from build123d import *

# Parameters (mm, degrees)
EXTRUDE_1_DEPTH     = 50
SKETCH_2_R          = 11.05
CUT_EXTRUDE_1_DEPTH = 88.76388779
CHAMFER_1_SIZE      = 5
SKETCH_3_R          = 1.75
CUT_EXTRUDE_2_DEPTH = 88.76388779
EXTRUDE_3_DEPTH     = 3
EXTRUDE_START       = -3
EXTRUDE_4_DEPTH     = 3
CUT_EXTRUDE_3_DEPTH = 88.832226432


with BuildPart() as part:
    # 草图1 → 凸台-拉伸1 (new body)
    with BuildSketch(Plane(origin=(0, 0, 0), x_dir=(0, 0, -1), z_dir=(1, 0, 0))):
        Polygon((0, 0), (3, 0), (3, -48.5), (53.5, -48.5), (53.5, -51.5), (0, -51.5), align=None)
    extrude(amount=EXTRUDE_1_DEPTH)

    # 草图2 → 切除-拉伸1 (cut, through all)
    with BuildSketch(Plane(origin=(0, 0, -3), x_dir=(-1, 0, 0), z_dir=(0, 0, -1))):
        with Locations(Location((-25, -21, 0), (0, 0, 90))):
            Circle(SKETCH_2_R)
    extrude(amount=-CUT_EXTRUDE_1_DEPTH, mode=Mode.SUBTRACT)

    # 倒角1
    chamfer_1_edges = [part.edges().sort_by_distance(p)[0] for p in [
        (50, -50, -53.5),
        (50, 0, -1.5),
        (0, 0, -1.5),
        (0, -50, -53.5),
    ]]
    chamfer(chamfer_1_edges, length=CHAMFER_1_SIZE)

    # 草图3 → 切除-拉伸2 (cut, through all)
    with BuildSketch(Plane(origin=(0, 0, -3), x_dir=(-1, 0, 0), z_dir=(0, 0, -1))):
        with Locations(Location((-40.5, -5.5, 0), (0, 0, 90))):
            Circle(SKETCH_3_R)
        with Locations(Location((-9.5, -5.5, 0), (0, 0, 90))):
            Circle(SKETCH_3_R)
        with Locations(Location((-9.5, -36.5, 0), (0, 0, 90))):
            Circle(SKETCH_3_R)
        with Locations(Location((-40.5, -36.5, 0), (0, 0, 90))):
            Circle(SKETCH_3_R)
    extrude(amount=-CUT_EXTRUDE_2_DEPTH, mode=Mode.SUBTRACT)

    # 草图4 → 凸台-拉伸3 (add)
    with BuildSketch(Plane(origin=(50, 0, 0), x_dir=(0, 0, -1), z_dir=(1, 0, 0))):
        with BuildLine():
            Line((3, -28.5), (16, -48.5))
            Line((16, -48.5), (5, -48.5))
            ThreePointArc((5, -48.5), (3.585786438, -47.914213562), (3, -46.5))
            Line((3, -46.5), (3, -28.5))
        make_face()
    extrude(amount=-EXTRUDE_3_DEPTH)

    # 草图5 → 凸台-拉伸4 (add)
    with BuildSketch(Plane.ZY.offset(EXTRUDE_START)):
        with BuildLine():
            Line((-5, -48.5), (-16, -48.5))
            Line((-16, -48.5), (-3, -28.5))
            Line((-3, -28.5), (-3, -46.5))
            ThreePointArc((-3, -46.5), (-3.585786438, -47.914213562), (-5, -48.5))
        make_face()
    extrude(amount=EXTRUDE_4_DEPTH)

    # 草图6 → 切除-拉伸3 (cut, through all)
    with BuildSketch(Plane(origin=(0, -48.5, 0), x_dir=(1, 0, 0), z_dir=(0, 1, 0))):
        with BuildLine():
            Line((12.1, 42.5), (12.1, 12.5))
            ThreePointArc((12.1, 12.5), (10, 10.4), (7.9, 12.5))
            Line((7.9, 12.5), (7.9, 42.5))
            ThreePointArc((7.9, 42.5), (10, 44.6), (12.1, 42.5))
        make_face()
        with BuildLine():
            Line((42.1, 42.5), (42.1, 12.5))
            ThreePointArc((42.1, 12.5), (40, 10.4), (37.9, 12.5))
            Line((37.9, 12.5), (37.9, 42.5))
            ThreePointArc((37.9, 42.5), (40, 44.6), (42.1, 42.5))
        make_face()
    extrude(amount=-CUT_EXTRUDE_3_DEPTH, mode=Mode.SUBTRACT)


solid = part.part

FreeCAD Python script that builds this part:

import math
import FreeCAD as App
import Part
import Sketcher
from FreeCAD import Vector
Q = App.Units.Quantity


def edges_at(feature, points):
    """Names of the edges that pass closest to the given points."""
    edges = feature.Shape.Edges
    near = lambda p: min(range(len(edges)), key=lambda i: edges[i].distToShape(Part.Vertex(*p))[0])
    return sorted({f"Edge{near(p) + 1}" for p in points})


def add_polygon(sketch, points):
    """Adds a closed chain of lines whose ends are joined by coincident constraints."""
    first, n = sketch.GeometryCount, len(points)
    for a, b in zip(points, points[1:] + points[:1]):
        sketch.addGeometry(Part.LineSegment(App.Vector(*a, 0), App.Vector(*b, 0)), False)
    for i in range(n):
        sketch.addConstraint(Sketcher.Constraint("Coincident", first + i, 2, first + (i + 1) % n, 1))

doc = App.newDocument("Part")
body = doc.addObject("PartDesign::Body", "Body")

sketch1 = body.newObject("Sketcher::SketchObject", "Sketch")
sketch1.AttachmentSupport = (doc.getObject("YZ_Plane"), [""])
sketch1.MapMode = "FlatFace"
add_polygon(sketch1, [(0, -3), (0, 0), (-51.5, 0), (-51.5, -53.5), (-48.5, -53.5), (-48.5, -3)])
sketch1.addConstraint([
    Sketcher.Constraint("Vertical", 0),
    Sketcher.Constraint("Horizontal", 1),
    Sketcher.Constraint("Vertical", 2),
    Sketcher.Constraint("Horizontal", 3),
    Sketcher.Constraint("Vertical", 4),
    Sketcher.Constraint("Horizontal", 5),
    Sketcher.Constraint("Coincident", 0, 2, -1, 1),
    Sketcher.Constraint("Equal", 3, 0),
    Sketcher.Constraint("DistanceX", 3, 1, 3, 2, Q("3 mm")),
    Sketcher.Constraint("DistanceX", 1, 2, 1, 1, Q("51.5 mm")),
    Sketcher.Constraint("DistanceY", 2, 2, 2, 1, Q("53.5 mm")),
])
pad1 = body.newObject("PartDesign::Pad", "Pad")
pad1.Profile = sketch1
pad1.Length = 50

sketch2 = body.newObject("Sketcher::SketchObject", "Sketch001")
sketch2.AttachmentSupport = (doc.getObject("XY_Plane"), [""])
sketch2.MapMode = "FlatFace"
sketch2.AttachmentOffset = App.Placement(Vector(0, 0, -3), App.Rotation())
sketch2.addGeometry(Part.Circle(Vector(25, -21, 0), Vector(0, 0, 1), 11), False)
sketch2.addConstraint([
    Sketcher.Constraint("Diameter", 0, Q("22.1 mm")),
    Sketcher.Constraint("DistanceX", -1, 1, 0, 3, Q("25 mm")),
    Sketcher.Constraint("DistanceY", 0, 3, -1, 1, Q("21 mm")),
])
pocket1 = body.newObject("PartDesign::Pocket", "Pocket")
pocket1.Profile = sketch2
pocket1.Type = "ThroughAll"
pocket1.Reversed = True
doc.recompute()

chamfer = body.newObject("PartDesign::Chamfer", "Chamfer")
chamfer.Base = (pocket1, edges_at(pocket1, [
    (50, -50, -53.5),
    (50, 0, -1.5),
    (0, 0, -1.5),
    (0, -50, -53.5),
]))
chamfer.Size = 5

sketch3 = body.newObject("Sketcher::SketchObject", "Sketch002")
sketch3.AttachmentSupport = (doc.getObject("XY_Plane"), [""])
sketch3.MapMode = "FlatFace"
sketch3.AttachmentOffset = App.Placement(Vector(0, 0, -3), App.Rotation())
sketch3.addGeometry([
    Part.Circle(Vector(40.5, -5.5, 0), Vector(0, 0, 1), 1.8),
    Part.Circle(Vector(9.5, -5.5, 0), Vector(0, 0, 1), 1.8),
    Part.Circle(Vector(9.5, -36.5, 0), Vector(0, 0, 1), 1.8),
    Part.Circle(Vector(40.5, -36.5, 0), Vector(0, 0, 1), 1.8),
], False)
sketch3.addConstraint([
    Sketcher.Constraint("Equal", 0, 1),
    Sketcher.Constraint("Equal", 1, 2),
    Sketcher.Constraint("Equal", 2, 3),
    Sketcher.Constraint("Horizontal", 0, 3, 1, 3),
    Sketcher.Constraint("Horizontal", 2, 3, 3, 3),
    Sketcher.Constraint("Vertical", 1, 3, 2, 3),
    Sketcher.Constraint("Vertical", 0, 3, 3, 3),
    Sketcher.Constraint("Diameter", 0, Q("3.5 mm")),
    Sketcher.Constraint("DistanceX", 1, 3, 0, 3, Q("31 mm")),
    Sketcher.Constraint("DistanceY", 2, 3, 1, 3, Q("31 mm")),
    Sketcher.Constraint("DistanceX", -1, 1, 0, 3, Q("40.5 mm")),
    Sketcher.Constraint("DistanceY", 0, 3, -1, 1, Q("5.5 mm")),
])
pocket2 = body.newObject("PartDesign::Pocket", "Pocket001")
pocket2.Profile = sketch3
pocket2.Type = "ThroughAll"
pocket2.Reversed = True

sketch4 = body.newObject("Sketcher::SketchObject", "Sketch003")
sketch4.AttachmentSupport = (doc.getObject("YZ_Plane"), [""])
sketch4.MapMode = "FlatFace"
sketch4.AttachmentOffset = App.Placement(Vector(0, 0, 50), App.Rotation())
sketch4.addGeometry([
    Part.LineSegment(Vector(-48.5, -16, 0), Vector(-28.5, -3, 0)),
    Part.LineSegment(Vector(-28.5, -3, 0), Vector(-46.5, -3, 0)),
    Part.ArcOfCircle(Part.Circle(Vector(-46.5, -5, 0), Vector(0, 0, 1), 2), math.radians(90), math.radians(180)),
    Part.LineSegment(Vector(-48.5, -5, 0), Vector(-48.5, -16, 0)),
], False)
sketch4.addConstraint([
    Sketcher.Constraint("Coincident", 0, 2, 1, 1),
    Sketcher.Constraint("Tangent", 1, 2, 2, 1),
    Sketcher.Constraint("Tangent", 2, 2, 3, 1),
    Sketcher.Constraint("Coincident", 3, 2, 0, 1),
    Sketcher.Constraint("Horizontal", 1),
    Sketcher.Constraint("Vertical", 3),
    Sketcher.Constraint("Radius", 2, Q("2 mm")),
    Sketcher.Constraint("DistanceX", 1, 2, 1, 1, Q("18 mm")),
    Sketcher.Constraint("DistanceY", 3, 2, 3, 1, Q("11 mm")),
    Sketcher.Constraint("DistanceY", 2, 3, -1, 1, Q("5 mm")),
    Sketcher.Constraint("DistanceX", 2, 3, -1, 1, Q("46.5 mm")),
])
pad2 = body.newObject("PartDesign::Pad", "Pad001")
pad2.Profile = sketch4
pad2.Length = 3
pad2.Reversed = True

sketch5 = body.newObject("Sketcher::SketchObject", "Sketch004")
sketch5.AttachmentSupport = (doc.getObject("YZ_Plane"), [""])
sketch5.MapMode = "FlatFace"
sketch5.AttachmentOffset = App.Placement(Vector(0, 0, 3), App.Rotation())
sketch5.addGeometry([
    Part.LineSegment(Vector(-48.5, -16, 0), Vector(-48.5, -5, 0)),
    Part.ArcOfCircle(Part.Circle(Vector(-46.5, -5, 0), Vector(0, 0, 1), 2), math.radians(90), math.radians(180)),
    Part.LineSegment(Vector(-46.5, -3, 0), Vector(-28.5, -3, 0)),
    Part.LineSegment(Vector(-28.5, -3, 0), Vector(-48.5, -16, 0)),
], False)
sketch5.addConstraint([
    Sketcher.Constraint("Tangent", 0, 2, 1, 2),
    Sketcher.Constraint("Tangent", 1, 1, 2, 1),
    Sketcher.Constraint("Coincident", 2, 2, 3, 1),
    Sketcher.Constraint("Coincident", 3, 2, 0, 1),
    Sketcher.Constraint("Vertical", 0),
    Sketcher.Constraint("Horizontal", 2),
    Sketcher.Constraint("Radius", 1, Q("2 mm")),
    Sketcher.Constraint("DistanceX", 2, 1, 2, 2, Q("18 mm")),
    Sketcher.Constraint("DistanceY", 0, 1, 0, 2, Q("11 mm")),
    Sketcher.Constraint("DistanceY", 1, 3, -1, 1, Q("5 mm")),
    Sketcher.Constraint("DistanceX", 1, 3, -1, 1, Q("46.5 mm")),
])
pad3 = body.newObject("PartDesign::Pad", "Pad002")
pad3.Profile = sketch5
pad3.Length = 3
pad3.Reversed = True

sketch6 = body.newObject("Sketcher::SketchObject", "Sketch005")
sketch6.AttachmentSupport = (doc.getObject("XZ_Plane"), [""])
sketch6.MapMode = "FlatFace"
sketch6.AttachmentOffset = App.Placement(Vector(0, 0, 48.5), App.Rotation())
sketch6.addGeometry([
    Part.LineSegment(Vector(12.1, -12.5, 0), Vector(12.1, -42.5, 0)),
    Part.ArcOfCircle(Part.Circle(Vector(10, -42.5, 0), Vector(0, 0, 1), 2.1), math.radians(180), math.radians(360)),
    Part.LineSegment(Vector(7.9, -42.5, 0), Vector(7.9, -12.5, 0)),
    Part.ArcOfCircle(Part.Circle(Vector(10, -12.5, 0), Vector(0, 0, 1), 2.1), math.radians(0), math.radians(180)),
    Part.LineSegment(Vector(42.1, -12.5, 0), Vector(42.1, -42.5, 0)),
    Part.ArcOfCircle(Part.Circle(Vector(40, -42.5, 0), Vector(0, 0, 1), 2.1), math.radians(180), math.radians(360)),
    Part.LineSegment(Vector(37.9, -42.5, 0), Vector(37.9, -12.5, 0)),
    Part.ArcOfCircle(Part.Circle(Vector(40, -12.5, 0), Vector(0, 0, 1), 2.1), math.radians(0), math.radians(180)),
], False)
sketch6.addConstraint([
    Sketcher.Constraint("Tangent", 0, 2, 1, 2),
    Sketcher.Constraint("Tangent", 1, 1, 2, 1),
    Sketcher.Constraint("Tangent", 2, 2, 3, 2),
    Sketcher.Constraint("Tangent", 3, 1, 0, 1),
    Sketcher.Constraint("Tangent", 4, 2, 5, 2),
    Sketcher.Constraint("Tangent", 5, 1, 6, 1),
    Sketcher.Constraint("Tangent", 6, 2, 7, 2),
    Sketcher.Constraint("Tangent", 7, 1, 4, 1),
    Sketcher.Constraint("Vertical", 0),
    Sketcher.Constraint("Vertical", 2),
    Sketcher.Constraint("Vertical", 4),
    Sketcher.Constraint("Vertical", 6),
    Sketcher.Constraint("Equal", 3, 5),
    Sketcher.Constraint("Horizontal", 1, 3, 5, 3),
    Sketcher.Constraint("Horizontal", 3, 3, 7, 3),
    Sketcher.Constraint("Radius", 1, Q("2.1 mm")),
    Sketcher.Constraint("DistanceY", 0, 2, 0, 1, Q("30 mm")),
    Sketcher.Constraint("DistanceX", -1, 1, 1, 3, Q("10 mm")),
    Sketcher.Constraint("DistanceX", -1, 1, 5, 3, Q("40 mm")),
    Sketcher.Constraint("DistanceY", 1, 3, -1, 1, Q("42.5 mm")),
])
pocket3 = body.newObject("PartDesign::Pocket", "Pocket002")
pocket3.Profile = sketch6
pocket3.Type = "ThroughAll"
pocket3.Reversed = True

doc.recompute()
